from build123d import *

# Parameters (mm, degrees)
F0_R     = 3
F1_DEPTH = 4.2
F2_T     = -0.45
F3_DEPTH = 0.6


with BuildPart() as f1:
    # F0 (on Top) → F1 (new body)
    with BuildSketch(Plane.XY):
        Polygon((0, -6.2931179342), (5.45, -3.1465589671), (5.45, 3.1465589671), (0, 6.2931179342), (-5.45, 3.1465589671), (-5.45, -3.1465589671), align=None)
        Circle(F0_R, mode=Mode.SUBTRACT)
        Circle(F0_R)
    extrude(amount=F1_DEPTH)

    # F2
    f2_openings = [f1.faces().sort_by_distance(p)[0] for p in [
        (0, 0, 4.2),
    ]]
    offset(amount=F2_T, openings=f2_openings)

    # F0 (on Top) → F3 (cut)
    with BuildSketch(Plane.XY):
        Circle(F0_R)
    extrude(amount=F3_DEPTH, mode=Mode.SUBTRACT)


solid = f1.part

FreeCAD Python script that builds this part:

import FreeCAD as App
import Part
import Sketcher

V = App.Vector
Q = App.Units.Quantity


def faces_at(feature, points):
    """Names of the faces that lie closest to the given points."""
    faces = feature.Shape.Faces
    near = lambda p: min(range(len(faces)), key=lambda i: faces[i].distToShape(Part.Vertex(*p))[0])
    return sorted({f"Face{near(p) + 1}" for p in points})


def add_polygon(sketch, points):
    """Adds a closed chain of lines whose ends are joined by coincident constraints."""
    first, n = sketch.GeometryCount, len(points)
    for a, b in zip(points, points[1:] + points[:1]):
        sketch.addGeometry(Part.LineSegment(App.Vector(*a, 0), App.Vector(*b, 0)), False)
    for i in range(n):
        sketch.addConstraint(Sketcher.Constraint("Coincident", first + i, 2, first + (i + 1) % n, 1))

doc = App.newDocument("Part")
body = doc.addObject("PartDesign::Body", "Body")

# Sketch on XY plane
sketch1 = doc.addObject("Sketcher::SketchObject", "Sketch")
body.addObject(sketch1)
sketch1.AttachmentSupport = (doc.XY_Plane, [""])
sketch1.MapMode = "FlatFace"
add_polygon(sketch1, [(0, -6), (5, -3), (5, 3), (0, 6), (-5, 3), (-5, -3)])  # lines 0-5
sketch1.addConstraint(Sketcher.Constraint("Vertical", 1))
sketch1.addConstraint(Sketcher.Constraint("Vertical", 4))
sketch1.addConstraint(Sketcher.Constraint("Symmetric", 0, 2, 3, 2, -1, 1))
sketch1.addConstraint(Sketcher.Constraint("Symmetric", 2, 2, 5, 2, -1, 1))
sketch1.addConstraint(Sketcher.Constraint("PointOnObject", 2, 2, -2))
sketch1.addConstraint(Sketcher.Constraint("Parallel", 2, 5))
sketch1.addConstraint(Sketcher.Constraint("Horizontal", 1, 2, 3, 2))
sketch1.addConstraint(Sketcher.Constraint("Angle", 0, Q("30 deg")))
sketch1.addConstraint(Sketcher.Constraint("DistanceX", 3, 2, 1, 2, 10.9))
sketch1.addConstraint(Sketcher.Constraint("DistanceY", 1, 1, 1, 2, 6.293118))
pad1 = doc.addObject("PartDesign::Pad", "Pad")
body.addObject(pad1)
pad1.Profile = sketch1
pad1.Length = 4.2
doc.recompute()

thickness = doc.addObject("PartDesign::Thickness", "Thickness")
body.addObject(thickness)
thickness.Base = (pad1, faces_at(pad1, [(0, 0, 4.2)]))
thickness.Value = 0.45
thickness.Reversed = True
thickness.Join = "Arc"

# Sketch on XY plane
sketch2 = doc.addObject("Sketcher::SketchObject", "Sketch001")
body.addObject(sketch2)
sketch2.AttachmentSupport = (doc.XY_Plane, [""])
sketch2.MapMode = "FlatFace"
sketch2.addGeometry(Part.Circle(V(0, 0, 0), V(0, 0, 1), 3), False)
sketch2.addConstraint(Sketcher.Constraint("Coincident", 0, 3, -1, 1))
sketch2.addConstraint(Sketcher.Constraint("Diameter", 0, 6.0))
pocket1 = doc.addObject("PartDesign::Pocket", "Pocket")
body.addObject(pocket1)
pocket1.Profile = sketch2
pocket1.Length = 0.6
pocket1.Reversed = True

doc.recompute()
